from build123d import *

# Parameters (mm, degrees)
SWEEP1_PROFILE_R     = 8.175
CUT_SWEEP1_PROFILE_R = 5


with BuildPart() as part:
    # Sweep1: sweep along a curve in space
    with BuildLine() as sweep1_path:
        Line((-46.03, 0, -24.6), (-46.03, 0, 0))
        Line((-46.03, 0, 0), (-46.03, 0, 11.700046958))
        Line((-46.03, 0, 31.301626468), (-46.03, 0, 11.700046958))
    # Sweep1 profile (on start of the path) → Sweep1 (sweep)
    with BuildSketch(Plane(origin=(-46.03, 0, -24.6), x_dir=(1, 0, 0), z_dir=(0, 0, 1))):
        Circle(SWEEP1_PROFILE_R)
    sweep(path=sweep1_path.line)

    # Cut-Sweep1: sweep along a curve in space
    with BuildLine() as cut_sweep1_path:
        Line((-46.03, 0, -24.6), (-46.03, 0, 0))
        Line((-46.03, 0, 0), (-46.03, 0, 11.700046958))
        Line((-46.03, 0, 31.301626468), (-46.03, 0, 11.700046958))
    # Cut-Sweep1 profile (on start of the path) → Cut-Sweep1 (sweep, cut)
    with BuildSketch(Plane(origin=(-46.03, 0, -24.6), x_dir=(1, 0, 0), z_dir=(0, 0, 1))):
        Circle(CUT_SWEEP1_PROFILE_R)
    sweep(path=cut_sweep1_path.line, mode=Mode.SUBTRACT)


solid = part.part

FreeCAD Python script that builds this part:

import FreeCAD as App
import Part
import Sketcher

V = App.Vector
Q = App.Units.Quantity

doc = App.newDocument("Part")
body = doc.addObject("PartDesign::Body", "Body")

# Sketch on XY plane
sketch1 = body.newObject("Sketcher::SketchObject", "Sketch")
sketch1.AttachmentSupport = (doc.getObject("XY_Plane"), [""])
sketch1.MapMode = "FlatFace"
sketch1.AttachmentOffset = App.Placement(V(0, 0, -24.6), App.Rotation())
sketch1.addGeometry(Part.Circle(V(-46, 0, 0), V(0, 0, 1), 8), False)
sketch1.addConstraint([
    Sketcher.Constraint("PointOnObject", 0, 3, -1),
    Sketcher.Constraint("Diameter", 0, Q("16.35 mm")),
    Sketcher.Constraint("DistanceX", 0, 3, -1, 1, Q("46.03 mm")),
])

# Sketch on XZ plane
sketch2 = body.newObject("Sketcher::SketchObject", "Sketch001")
sketch2.AttachmentSupport = (doc.getObject("XZ_Plane"), [""])
sketch2.MapMode = "FlatFace"
sketch2.addGeometry([
    Part.LineSegment(V(-46, -25, 0), V(-46, 12, 0)),
    Part.LineSegment(V(-46, 12, 0), V(-46, 31, 0)),
], False)
sketch2.addConstraint([
    Sketcher.Constraint("Coincident", 0, 2, 1, 1),
    Sketcher.Constraint("Vertical", 0),
    Sketcher.Constraint("Vertical", 1),
    Sketcher.Constraint("DistanceY", 0, 1, -1, 1, Q("24.6 mm")),
    Sketcher.Constraint("DistanceX", 0, 1, -1, 1, Q("46.03 mm")),
    Sketcher.Constraint("DistanceY", 1, 1, 1, 2, Q("19.60158 mm")),
    Sketcher.Constraint("DistanceY", 0, 1, 0, 2, Q("36.300047 mm")),
])
doc.recompute()

additivepipe = body.newObject("PartDesign::AdditivePipe", "AdditivePipe")
additivepipe.Profile = sketch1
additivepipe.Spine = (sketch2, ["Edge1", "Edge2"])

# Sketch on XY plane
sketch3 = body.newObject("Sketcher::SketchObject", "Sketch002")
sketch3.AttachmentSupport = (doc.getObject("XY_Plane"), [""])
sketch3.MapMode = "FlatFace"
sketch3.AttachmentOffset = App.Placement(V(0, 0, -24.6), App.Rotation())
sketch3.addGeometry(Part.Circle(V(-46, 0, 0), V(0, 0, 1), 5), False)
sketch3.addConstraint([
    Sketcher.Constraint("PointOnObject", 0, 3, -1),
    Sketcher.Constraint("Diameter", 0, Q("10 mm")),
    Sketcher.Constraint("DistanceX", 0, 3, -1, 1, Q("46.03 mm")),
])

# Sketch on XZ plane
sketch4 = body.newObject("Sketcher::SketchObject", "Sketch003")
sketch4.AttachmentSupport = (doc.getObject("XZ_Plane"), [""])
sketch4.MapMode = "FlatFace"
sketch4.addGeometry([
    Part.LineSegment(V(-46, -25, 0), V(-46, 12, 0)),
    Part.LineSegment(V(-46, 12, 0), V(-46, 31, 0)),
], False)
sketch4.addConstraint([
    Sketcher.Constraint("Coincident", 0, 2, 1, 1),
    Sketcher.Constraint("Vertical", 0),
    Sketcher.Constraint("Vertical", 1),
    Sketcher.Constraint("DistanceY", 0, 1, -1, 1, Q("24.6 mm")),
    Sketcher.Constraint("DistanceX", 0, 1, -1, 1, Q("46.03 mm")),
    Sketcher.Constraint("DistanceY", 1, 1, 1, 2, Q("19.60158 mm")),
    Sketcher.Constraint("DistanceY", 0, 1, 0, 2, Q("36.300047 mm")),
])
doc.recompute()

subtractivepipe = body.newObject("PartDesign::SubtractivePipe", "SubtractivePipe")
subtractivepipe.Profile = sketch3
subtractivepipe.Spine = (sketch4, ["Edge1", "Edge2"])

doc.recompute()
